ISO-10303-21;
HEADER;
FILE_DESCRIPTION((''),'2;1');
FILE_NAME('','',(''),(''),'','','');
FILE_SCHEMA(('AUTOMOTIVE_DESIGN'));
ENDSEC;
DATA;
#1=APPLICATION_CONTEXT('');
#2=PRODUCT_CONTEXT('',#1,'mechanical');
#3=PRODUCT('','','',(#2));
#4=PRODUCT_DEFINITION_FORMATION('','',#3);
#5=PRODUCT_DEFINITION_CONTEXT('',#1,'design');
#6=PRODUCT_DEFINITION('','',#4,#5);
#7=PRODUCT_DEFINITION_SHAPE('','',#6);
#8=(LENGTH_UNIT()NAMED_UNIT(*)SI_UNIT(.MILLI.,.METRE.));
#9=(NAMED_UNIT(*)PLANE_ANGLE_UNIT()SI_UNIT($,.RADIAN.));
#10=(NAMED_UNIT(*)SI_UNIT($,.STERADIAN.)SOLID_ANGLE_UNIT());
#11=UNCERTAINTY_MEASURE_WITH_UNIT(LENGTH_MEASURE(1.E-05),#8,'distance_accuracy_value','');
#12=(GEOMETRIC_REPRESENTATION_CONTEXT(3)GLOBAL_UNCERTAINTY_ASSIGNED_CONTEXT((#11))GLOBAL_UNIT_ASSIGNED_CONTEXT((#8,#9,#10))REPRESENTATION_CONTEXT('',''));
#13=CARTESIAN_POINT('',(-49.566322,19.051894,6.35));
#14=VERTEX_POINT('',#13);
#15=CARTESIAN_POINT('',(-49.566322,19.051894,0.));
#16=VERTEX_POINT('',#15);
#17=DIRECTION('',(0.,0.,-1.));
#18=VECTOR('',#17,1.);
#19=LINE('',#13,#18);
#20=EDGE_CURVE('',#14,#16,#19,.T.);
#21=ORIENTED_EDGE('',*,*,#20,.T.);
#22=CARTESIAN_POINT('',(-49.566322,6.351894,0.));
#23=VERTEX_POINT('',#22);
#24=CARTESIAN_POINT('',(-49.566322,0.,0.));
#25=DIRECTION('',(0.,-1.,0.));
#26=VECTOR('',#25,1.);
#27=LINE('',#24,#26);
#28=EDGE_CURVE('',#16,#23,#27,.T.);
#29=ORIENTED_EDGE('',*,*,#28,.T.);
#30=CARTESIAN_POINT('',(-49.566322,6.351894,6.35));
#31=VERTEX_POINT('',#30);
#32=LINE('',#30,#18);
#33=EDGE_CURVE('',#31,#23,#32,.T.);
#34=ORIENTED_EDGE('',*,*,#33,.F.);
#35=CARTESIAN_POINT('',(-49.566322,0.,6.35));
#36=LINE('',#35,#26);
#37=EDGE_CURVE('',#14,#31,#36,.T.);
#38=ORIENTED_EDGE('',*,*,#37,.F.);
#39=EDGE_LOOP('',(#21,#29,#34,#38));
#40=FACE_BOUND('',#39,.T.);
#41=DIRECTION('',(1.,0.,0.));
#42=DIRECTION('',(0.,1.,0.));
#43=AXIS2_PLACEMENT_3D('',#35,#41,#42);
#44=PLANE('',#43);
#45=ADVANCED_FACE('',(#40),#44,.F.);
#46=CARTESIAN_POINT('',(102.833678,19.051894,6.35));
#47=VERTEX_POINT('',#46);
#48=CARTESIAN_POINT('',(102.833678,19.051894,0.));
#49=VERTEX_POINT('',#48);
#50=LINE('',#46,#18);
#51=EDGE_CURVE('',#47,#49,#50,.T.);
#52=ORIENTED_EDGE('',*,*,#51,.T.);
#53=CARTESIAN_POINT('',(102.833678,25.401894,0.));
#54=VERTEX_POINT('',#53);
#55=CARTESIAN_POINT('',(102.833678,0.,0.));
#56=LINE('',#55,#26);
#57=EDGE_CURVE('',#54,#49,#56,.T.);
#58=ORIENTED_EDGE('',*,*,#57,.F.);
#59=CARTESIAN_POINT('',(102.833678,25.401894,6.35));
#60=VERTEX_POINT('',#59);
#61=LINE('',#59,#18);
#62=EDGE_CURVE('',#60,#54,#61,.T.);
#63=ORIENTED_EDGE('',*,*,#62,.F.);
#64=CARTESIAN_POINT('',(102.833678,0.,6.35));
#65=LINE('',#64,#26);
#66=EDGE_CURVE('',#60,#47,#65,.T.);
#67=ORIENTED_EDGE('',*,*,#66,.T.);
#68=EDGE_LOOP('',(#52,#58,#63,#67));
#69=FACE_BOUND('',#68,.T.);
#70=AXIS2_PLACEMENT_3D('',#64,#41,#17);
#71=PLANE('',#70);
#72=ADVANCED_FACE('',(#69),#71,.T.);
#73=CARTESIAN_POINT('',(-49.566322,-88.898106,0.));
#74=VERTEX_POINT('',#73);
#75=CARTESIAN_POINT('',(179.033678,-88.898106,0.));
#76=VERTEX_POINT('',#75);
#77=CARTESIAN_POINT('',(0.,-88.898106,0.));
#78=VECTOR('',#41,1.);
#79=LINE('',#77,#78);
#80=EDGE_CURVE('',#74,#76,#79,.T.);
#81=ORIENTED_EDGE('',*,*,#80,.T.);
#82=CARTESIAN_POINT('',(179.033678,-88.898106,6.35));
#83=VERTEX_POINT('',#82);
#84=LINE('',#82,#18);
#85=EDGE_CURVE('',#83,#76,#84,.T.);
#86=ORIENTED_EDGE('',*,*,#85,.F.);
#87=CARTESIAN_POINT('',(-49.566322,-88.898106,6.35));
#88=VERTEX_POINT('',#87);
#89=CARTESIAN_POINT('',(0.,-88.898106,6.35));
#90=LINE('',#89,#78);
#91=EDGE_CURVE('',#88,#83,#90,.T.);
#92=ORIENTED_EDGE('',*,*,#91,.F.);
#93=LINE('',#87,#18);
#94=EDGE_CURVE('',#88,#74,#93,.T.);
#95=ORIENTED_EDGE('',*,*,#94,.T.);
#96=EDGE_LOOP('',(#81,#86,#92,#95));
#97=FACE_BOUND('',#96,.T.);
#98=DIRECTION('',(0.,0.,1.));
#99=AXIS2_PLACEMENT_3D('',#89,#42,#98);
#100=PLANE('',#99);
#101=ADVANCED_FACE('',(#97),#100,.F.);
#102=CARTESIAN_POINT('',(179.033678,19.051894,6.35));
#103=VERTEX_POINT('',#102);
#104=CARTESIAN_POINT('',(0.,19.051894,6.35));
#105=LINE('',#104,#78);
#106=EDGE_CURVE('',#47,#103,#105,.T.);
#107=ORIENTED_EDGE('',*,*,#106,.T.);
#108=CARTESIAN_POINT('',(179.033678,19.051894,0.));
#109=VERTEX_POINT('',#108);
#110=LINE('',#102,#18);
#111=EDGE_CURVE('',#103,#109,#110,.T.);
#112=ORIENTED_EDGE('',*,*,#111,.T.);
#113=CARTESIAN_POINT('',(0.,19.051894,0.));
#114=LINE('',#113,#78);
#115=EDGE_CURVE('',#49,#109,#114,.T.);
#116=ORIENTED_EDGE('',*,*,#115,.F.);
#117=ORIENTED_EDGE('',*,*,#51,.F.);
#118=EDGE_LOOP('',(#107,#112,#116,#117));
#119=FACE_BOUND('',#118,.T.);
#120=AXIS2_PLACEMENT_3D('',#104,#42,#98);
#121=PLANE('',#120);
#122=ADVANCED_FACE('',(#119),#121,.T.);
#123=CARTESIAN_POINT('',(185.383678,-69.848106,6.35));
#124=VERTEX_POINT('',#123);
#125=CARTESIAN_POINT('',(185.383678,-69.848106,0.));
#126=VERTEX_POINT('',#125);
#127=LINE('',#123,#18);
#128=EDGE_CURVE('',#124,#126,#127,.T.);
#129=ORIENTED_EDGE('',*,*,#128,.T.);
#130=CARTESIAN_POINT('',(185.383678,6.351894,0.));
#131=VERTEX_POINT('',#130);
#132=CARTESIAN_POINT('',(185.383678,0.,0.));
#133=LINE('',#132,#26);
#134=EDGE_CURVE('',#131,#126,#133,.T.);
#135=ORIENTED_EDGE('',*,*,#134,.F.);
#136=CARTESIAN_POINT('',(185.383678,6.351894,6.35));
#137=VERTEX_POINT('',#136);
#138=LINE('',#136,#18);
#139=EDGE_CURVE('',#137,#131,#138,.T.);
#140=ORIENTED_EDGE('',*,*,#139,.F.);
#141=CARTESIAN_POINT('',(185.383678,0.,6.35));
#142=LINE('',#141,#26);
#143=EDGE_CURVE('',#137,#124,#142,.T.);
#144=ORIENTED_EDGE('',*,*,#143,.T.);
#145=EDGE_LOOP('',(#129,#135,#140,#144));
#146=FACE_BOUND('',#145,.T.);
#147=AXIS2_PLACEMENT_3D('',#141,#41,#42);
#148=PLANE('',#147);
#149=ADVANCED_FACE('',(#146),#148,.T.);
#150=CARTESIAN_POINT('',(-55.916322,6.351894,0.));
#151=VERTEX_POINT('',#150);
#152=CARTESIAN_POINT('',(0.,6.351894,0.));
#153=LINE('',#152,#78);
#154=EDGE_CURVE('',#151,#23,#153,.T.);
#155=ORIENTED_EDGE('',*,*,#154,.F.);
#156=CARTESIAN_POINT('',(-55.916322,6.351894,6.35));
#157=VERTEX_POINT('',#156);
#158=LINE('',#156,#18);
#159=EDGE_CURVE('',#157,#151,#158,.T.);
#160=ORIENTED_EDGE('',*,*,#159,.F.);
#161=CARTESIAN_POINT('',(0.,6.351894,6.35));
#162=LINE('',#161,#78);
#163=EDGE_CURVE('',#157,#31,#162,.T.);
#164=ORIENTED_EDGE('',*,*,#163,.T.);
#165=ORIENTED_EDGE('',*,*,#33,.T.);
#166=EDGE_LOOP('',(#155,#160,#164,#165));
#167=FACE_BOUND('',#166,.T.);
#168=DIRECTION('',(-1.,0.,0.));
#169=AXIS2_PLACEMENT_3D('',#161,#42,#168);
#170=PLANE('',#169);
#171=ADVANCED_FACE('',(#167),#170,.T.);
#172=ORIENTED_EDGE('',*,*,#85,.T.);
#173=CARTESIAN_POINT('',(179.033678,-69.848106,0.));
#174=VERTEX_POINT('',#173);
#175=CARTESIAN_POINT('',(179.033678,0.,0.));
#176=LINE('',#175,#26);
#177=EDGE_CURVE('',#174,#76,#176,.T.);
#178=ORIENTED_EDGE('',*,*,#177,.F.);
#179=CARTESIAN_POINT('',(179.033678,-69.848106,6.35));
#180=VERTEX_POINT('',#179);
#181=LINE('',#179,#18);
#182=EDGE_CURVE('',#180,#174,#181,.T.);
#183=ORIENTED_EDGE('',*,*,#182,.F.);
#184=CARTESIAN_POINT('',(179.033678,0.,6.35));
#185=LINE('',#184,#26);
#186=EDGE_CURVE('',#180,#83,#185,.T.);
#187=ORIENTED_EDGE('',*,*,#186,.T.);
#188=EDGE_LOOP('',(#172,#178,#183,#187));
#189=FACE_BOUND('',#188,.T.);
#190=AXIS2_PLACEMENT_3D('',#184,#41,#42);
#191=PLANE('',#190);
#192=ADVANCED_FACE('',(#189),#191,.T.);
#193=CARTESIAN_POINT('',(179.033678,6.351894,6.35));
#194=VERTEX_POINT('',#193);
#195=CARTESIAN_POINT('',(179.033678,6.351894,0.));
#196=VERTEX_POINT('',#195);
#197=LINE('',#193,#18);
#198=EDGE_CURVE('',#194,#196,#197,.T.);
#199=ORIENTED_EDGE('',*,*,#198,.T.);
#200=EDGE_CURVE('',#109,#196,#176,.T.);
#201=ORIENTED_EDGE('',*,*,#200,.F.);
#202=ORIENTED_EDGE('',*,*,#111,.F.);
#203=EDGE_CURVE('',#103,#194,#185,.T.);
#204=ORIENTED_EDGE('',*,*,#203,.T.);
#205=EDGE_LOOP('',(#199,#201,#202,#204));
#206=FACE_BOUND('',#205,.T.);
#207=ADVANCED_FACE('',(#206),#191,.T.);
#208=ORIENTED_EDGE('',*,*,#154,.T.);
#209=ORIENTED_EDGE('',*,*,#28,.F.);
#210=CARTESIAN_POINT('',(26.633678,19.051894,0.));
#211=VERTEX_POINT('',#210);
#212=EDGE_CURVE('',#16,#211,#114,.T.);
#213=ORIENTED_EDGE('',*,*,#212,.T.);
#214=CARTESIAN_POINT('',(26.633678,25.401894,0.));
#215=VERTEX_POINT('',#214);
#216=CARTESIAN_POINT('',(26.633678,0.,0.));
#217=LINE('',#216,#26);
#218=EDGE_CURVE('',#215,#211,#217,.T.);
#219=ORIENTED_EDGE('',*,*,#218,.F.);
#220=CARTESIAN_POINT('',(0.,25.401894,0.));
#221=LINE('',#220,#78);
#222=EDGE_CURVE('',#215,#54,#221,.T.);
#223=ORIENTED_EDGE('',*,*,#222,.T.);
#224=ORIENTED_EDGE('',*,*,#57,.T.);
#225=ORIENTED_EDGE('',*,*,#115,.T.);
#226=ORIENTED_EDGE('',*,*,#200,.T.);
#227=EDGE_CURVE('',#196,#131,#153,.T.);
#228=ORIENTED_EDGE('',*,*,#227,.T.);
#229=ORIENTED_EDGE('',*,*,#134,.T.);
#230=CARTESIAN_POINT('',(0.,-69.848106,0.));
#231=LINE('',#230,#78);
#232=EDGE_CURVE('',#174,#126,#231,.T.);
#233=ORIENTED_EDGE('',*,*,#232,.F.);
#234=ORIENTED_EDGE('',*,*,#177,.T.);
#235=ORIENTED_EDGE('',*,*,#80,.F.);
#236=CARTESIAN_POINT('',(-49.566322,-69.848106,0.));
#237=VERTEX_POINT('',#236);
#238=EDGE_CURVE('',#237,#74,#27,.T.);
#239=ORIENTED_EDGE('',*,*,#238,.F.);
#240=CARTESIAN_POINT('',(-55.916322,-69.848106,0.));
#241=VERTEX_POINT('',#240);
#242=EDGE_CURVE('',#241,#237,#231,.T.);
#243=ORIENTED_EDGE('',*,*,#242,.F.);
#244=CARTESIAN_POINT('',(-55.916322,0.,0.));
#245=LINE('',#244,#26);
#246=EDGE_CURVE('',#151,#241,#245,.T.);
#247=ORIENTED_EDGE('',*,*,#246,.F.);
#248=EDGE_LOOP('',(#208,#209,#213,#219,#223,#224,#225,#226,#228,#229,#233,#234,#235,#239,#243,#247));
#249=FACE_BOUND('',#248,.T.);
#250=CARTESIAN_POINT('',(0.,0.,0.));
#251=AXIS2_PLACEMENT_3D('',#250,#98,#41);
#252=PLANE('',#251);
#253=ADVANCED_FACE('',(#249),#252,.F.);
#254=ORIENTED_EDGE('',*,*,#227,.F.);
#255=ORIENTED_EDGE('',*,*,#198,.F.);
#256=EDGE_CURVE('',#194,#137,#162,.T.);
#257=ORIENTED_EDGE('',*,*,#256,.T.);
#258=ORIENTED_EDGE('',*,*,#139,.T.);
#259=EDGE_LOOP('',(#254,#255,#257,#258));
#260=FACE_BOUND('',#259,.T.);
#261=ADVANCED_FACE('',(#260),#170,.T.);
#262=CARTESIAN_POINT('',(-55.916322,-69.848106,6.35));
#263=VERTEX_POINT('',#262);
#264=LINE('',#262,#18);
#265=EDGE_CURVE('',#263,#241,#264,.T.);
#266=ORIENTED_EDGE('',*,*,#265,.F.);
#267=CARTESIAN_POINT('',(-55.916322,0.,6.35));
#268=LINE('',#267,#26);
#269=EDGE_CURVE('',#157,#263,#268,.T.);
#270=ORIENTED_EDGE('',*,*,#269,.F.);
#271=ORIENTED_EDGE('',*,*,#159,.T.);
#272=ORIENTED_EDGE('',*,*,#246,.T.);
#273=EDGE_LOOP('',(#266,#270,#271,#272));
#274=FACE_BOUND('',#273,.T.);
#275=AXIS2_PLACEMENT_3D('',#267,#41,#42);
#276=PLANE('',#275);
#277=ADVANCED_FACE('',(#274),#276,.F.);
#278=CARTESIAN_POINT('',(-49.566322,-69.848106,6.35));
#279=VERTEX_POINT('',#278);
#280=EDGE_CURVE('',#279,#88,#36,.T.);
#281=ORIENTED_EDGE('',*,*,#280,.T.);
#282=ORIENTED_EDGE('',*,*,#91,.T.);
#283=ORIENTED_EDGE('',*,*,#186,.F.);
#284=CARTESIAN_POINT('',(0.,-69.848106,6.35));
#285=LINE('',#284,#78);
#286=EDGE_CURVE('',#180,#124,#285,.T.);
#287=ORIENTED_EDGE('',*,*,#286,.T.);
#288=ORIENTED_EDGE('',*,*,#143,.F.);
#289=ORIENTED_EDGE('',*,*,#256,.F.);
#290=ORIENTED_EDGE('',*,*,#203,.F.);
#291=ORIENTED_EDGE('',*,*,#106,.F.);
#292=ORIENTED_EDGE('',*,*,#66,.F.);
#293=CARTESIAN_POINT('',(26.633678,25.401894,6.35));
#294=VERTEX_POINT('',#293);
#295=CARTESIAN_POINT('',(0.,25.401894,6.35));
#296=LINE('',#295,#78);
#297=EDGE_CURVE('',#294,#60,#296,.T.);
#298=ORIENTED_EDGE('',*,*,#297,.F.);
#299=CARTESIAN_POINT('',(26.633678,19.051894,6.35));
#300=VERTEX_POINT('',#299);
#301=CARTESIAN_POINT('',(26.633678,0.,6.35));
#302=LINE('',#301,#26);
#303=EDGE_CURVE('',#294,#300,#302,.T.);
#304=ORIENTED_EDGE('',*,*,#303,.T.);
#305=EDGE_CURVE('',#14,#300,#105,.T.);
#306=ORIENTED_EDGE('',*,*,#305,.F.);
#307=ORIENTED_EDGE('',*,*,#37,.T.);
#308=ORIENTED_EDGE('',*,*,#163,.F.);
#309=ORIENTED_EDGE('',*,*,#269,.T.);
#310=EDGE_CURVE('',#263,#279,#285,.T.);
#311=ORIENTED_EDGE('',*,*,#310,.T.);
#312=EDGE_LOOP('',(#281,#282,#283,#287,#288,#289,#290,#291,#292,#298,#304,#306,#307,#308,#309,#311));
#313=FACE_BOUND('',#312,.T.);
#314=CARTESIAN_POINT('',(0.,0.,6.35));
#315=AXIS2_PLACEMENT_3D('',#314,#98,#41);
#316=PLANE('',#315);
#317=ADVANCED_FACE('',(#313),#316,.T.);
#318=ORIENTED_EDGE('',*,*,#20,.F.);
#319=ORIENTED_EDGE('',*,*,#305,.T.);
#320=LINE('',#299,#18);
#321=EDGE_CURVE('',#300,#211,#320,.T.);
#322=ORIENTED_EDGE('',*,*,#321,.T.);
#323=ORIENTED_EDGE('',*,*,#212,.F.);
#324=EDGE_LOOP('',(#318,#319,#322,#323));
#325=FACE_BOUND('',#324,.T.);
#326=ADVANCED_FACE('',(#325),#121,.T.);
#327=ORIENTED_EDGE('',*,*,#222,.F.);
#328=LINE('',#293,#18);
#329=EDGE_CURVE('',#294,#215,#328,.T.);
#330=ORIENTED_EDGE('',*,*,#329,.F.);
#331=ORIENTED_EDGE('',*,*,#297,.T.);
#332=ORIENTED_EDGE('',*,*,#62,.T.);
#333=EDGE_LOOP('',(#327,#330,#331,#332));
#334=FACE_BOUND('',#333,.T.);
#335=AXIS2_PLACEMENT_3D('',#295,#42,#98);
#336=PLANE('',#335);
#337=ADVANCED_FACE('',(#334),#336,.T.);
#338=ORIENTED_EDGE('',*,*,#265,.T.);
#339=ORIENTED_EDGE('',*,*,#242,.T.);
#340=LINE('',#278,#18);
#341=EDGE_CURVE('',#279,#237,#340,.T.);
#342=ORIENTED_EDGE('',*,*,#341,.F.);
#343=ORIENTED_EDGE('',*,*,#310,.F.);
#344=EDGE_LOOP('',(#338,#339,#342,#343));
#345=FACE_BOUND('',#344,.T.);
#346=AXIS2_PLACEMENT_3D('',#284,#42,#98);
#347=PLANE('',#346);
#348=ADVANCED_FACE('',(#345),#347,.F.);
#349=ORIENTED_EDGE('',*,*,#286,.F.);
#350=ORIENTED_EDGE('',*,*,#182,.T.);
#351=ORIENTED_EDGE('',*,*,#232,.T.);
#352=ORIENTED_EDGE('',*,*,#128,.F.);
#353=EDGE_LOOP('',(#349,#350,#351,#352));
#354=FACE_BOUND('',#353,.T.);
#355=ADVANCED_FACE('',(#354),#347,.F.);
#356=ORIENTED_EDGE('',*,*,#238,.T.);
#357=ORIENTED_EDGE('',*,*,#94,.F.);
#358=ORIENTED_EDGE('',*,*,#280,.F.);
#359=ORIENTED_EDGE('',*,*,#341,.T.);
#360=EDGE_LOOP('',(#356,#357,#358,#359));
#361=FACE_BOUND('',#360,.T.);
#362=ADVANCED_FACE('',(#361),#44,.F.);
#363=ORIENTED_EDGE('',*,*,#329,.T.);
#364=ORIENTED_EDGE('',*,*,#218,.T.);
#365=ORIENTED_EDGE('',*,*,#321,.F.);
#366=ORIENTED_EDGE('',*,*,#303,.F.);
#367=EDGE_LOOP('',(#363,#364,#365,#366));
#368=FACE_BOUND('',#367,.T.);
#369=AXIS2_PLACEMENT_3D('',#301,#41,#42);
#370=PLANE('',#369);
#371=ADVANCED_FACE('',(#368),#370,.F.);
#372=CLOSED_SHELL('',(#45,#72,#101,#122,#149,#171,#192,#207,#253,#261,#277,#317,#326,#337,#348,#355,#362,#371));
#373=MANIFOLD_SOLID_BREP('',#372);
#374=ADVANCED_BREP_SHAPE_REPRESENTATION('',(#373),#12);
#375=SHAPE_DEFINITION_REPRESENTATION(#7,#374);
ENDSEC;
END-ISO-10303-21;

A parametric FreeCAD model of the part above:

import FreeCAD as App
import Part
import Sketcher
from FreeCAD import Vector
Q = App.Units.Quantity

doc = App.newDocument("Part")
body = doc.addObject("PartDesign::Body", "Body")

sketch1 = doc.addObject("Sketcher::SketchObject", "Sketch")
body.addObject(sketch1)
sketch1.AttachmentSupport = (doc.XY_Plane, [""])
sketch1.MapMode = "FlatFace"
sketch1.addGeometry(Part.LineSegment(Vector(-49.566322, -69.848106, 0), Vector(-49.566322, -88.898106, 0)), False)
sketch1.addGeometry(Part.LineSegment(Vector(-49.566322, -88.898106, 0), Vector(179.033678, -88.898106, 0)), False)
sketch1.addGeometry(Part.LineSegment(Vector(179.033678, -88.898106, 0), Vector(179.033678, -69.848106, 0)), False)
sketch1.addGeometry(Part.LineSegment(Vector(179.033678, -69.848106, 0), Vector(185.383678, -69.848106, 0)), False)
sketch1.addGeometry(Part.LineSegment(Vector(185.383678, -69.848106, 0), Vector(185.383678, 6.351894, 0)), False)
sketch1.addGeometry(Part.LineSegment(Vector(185.383678, 6.351894, 0), Vector(179.033678, 6.351894, 0)), False)
sketch1.addGeometry(Part.LineSegment(Vector(179.033678, 6.351894, 0), Vector(179.033678, 19.051894, 0)), False)
sketch1.addGeometry(Part.LineSegment(Vector(179.033678, 19.051894, 0), Vector(102.833678, 19.051894, 0)), False)
sketch1.addGeometry(Part.LineSegment(Vector(102.833678, 19.051894, 0), Vector(102.833678, 25.401894, 0)), False)
sketch1.addGeometry(Part.LineSegment(Vector(102.833678, 25.401894, 0), Vector(26.633678, 25.401894, 0)), False)
sketch1.addGeometry(Part.LineSegment(Vector(26.633678, 25.401894, 0), Vector(26.633678, 19.051894, 0)), False)
sketch1.addGeometry(Part.LineSegment(Vector(26.633678, 19.051894, 0), Vector(-49.566322, 19.051894, 0)), False)
sketch1.addGeometry(Part.LineSegment(Vector(-49.566322, 19.051894, 0), Vector(-49.566322, 6.351894, 0)), False)
sketch1.addGeometry(Part.LineSegment(Vector(-49.566322, 6.351894, 0), Vector(-55.916322, 6.351894, 0)), False)
sketch1.addGeometry(Part.LineSegment(Vector(-55.916322, 6.351894, 0), Vector(-55.916322, -69.848106, 0)), False)
sketch1.addGeometry(Part.LineSegment(Vector(-55.916322, -69.848106, 0), Vector(-49.566322, -69.848106, 0)), False)
sketch1.addConstraint(Sketcher.Constraint("Coincident", 0, 2, 1, 1))
sketch1.addConstraint(Sketcher.Constraint("Coincident", 1, 2, 2, 1))
sketch1.addConstraint(Sketcher.Constraint("Coincident", 2, 2, 3, 1))
sketch1.addConstraint(Sketcher.Constraint("Coincident", 3, 2, 4, 1))
sketch1.addConstraint(Sketcher.Constraint("Coincident", 4, 2, 5, 1))
sketch1.addConstraint(Sketcher.Constraint("Coincident", 5, 2, 6, 1))
sketch1.addConstraint(Sketcher.Constraint("Coincident", 6, 2, 7, 1))
sketch1.addConstraint(Sketcher.Constraint("Coincident", 7, 2, 8, 1))
sketch1.addConstraint(Sketcher.Constraint("Coincident", 8, 2, 9, 1))
sketch1.addConstraint(Sketcher.Constraint("Coincident", 9, 2, 10, 1))
sketch1.addConstraint(Sketcher.Constraint("Coincident", 10, 2, 11, 1))
sketch1.addConstraint(Sketcher.Constraint("Coincident", 11, 2, 12, 1))
sketch1.addConstraint(Sketcher.Constraint("Coincident", 12, 2, 13, 1))
sketch1.addConstraint(Sketcher.Constraint("Coincident", 13, 2, 14, 1))
sketch1.addConstraint(Sketcher.Constraint("Coincident", 14, 2, 15, 1))
sketch1.addConstraint(Sketcher.Constraint("Coincident", 15, 2, 0, 1))
sketch1.addConstraint(Sketcher.Constraint("Vertical", 0))
sketch1.addConstraint(Sketcher.Constraint("Horizontal", 1))
sketch1.addConstraint(Sketcher.Constraint("Vertical", 2))
sketch1.addConstraint(Sketcher.Constraint("Horizontal", 3))
sketch1.addConstraint(Sketcher.Constraint("Vertical", 4))
sketch1.addConstraint(Sketcher.Constraint("Horizontal", 5))
sketch1.addConstraint(Sketcher.Constraint("Vertical", 6))
sketch1.addConstraint(Sketcher.Constraint("Horizontal", 7))
sketch1.addConstraint(Sketcher.Constraint("Vertical", 8))
sketch1.addConstraint(Sketcher.Constraint("Horizontal", 9))
sketch1.addConstraint(Sketcher.Constraint("Vertical", 10))
sketch1.addConstraint(Sketcher.Constraint("Horizontal", 11))
sketch1.addConstraint(Sketcher.Constraint("Vertical", 12))
sketch1.addConstraint(Sketcher.Constraint("Horizontal", 13))
sketch1.addConstraint(Sketcher.Constraint("Vertical", 14))
sketch1.addConstraint(Sketcher.Constraint("Horizontal", 15))
sketch1.addConstraint(Sketcher.Constraint("Horizontal", 7, 2, 10, 2))
sketch1.addConstraint(Sketcher.Constraint("Horizontal", 5, 2, 12, 2))
sketch1.addConstraint(Sketcher.Constraint("Horizontal", 3, 2, 14, 2))
sketch1.addConstraint(Sketcher.Constraint("Vertical", 2, 2, 5, 2))
sketch1.addConstraint(Sketcher.Constraint("Vertical", 0, 2, 11, 2))
sketch1.addConstraint(Sketcher.Constraint("Equal", 7, 9))
sketch1.addConstraint(Sketcher.Constraint("Equal", 9, 11))
sketch1.addConstraint(Sketcher.Constraint("Equal", 5, 13))
sketch1.addConstraint(Sketcher.Constraint("Equal", 11, 4))
sketch1.addConstraint(Sketcher.Constraint("Equal", 15, 8))
sketch1.addConstraint(Sketcher.Constraint("DistanceX", 1, 1, 1, 2, Q("9 in")))
sketch1.addConstraint(Sketcher.Constraint("DistanceY", 6, 1, 6, 2, Q("0.5 in")))
sketch1.addConstraint(Sketcher.Constraint("DistanceX", 3, 1, 3, 2, Q("0.25 in")))
sketch1.addConstraint(Sketcher.Constraint("DistanceY", 0, 2, 0, 1, Q("0.75 in")))
sketch1.addConstraint(Sketcher.Constraint("DistanceX", 0, 2, -1, 1, Q("49.566322 mm")))
sketch1.addConstraint(Sketcher.Constraint("DistanceY", 0, 2, -1, 1, Q("88.898106 mm")))
pad1 = doc.addObject("PartDesign::Pad", "Pad")
body.addObject(pad1)
pad1.Profile = sketch1
pad1.Length = Q("0.25 in")

doc.recompute()
